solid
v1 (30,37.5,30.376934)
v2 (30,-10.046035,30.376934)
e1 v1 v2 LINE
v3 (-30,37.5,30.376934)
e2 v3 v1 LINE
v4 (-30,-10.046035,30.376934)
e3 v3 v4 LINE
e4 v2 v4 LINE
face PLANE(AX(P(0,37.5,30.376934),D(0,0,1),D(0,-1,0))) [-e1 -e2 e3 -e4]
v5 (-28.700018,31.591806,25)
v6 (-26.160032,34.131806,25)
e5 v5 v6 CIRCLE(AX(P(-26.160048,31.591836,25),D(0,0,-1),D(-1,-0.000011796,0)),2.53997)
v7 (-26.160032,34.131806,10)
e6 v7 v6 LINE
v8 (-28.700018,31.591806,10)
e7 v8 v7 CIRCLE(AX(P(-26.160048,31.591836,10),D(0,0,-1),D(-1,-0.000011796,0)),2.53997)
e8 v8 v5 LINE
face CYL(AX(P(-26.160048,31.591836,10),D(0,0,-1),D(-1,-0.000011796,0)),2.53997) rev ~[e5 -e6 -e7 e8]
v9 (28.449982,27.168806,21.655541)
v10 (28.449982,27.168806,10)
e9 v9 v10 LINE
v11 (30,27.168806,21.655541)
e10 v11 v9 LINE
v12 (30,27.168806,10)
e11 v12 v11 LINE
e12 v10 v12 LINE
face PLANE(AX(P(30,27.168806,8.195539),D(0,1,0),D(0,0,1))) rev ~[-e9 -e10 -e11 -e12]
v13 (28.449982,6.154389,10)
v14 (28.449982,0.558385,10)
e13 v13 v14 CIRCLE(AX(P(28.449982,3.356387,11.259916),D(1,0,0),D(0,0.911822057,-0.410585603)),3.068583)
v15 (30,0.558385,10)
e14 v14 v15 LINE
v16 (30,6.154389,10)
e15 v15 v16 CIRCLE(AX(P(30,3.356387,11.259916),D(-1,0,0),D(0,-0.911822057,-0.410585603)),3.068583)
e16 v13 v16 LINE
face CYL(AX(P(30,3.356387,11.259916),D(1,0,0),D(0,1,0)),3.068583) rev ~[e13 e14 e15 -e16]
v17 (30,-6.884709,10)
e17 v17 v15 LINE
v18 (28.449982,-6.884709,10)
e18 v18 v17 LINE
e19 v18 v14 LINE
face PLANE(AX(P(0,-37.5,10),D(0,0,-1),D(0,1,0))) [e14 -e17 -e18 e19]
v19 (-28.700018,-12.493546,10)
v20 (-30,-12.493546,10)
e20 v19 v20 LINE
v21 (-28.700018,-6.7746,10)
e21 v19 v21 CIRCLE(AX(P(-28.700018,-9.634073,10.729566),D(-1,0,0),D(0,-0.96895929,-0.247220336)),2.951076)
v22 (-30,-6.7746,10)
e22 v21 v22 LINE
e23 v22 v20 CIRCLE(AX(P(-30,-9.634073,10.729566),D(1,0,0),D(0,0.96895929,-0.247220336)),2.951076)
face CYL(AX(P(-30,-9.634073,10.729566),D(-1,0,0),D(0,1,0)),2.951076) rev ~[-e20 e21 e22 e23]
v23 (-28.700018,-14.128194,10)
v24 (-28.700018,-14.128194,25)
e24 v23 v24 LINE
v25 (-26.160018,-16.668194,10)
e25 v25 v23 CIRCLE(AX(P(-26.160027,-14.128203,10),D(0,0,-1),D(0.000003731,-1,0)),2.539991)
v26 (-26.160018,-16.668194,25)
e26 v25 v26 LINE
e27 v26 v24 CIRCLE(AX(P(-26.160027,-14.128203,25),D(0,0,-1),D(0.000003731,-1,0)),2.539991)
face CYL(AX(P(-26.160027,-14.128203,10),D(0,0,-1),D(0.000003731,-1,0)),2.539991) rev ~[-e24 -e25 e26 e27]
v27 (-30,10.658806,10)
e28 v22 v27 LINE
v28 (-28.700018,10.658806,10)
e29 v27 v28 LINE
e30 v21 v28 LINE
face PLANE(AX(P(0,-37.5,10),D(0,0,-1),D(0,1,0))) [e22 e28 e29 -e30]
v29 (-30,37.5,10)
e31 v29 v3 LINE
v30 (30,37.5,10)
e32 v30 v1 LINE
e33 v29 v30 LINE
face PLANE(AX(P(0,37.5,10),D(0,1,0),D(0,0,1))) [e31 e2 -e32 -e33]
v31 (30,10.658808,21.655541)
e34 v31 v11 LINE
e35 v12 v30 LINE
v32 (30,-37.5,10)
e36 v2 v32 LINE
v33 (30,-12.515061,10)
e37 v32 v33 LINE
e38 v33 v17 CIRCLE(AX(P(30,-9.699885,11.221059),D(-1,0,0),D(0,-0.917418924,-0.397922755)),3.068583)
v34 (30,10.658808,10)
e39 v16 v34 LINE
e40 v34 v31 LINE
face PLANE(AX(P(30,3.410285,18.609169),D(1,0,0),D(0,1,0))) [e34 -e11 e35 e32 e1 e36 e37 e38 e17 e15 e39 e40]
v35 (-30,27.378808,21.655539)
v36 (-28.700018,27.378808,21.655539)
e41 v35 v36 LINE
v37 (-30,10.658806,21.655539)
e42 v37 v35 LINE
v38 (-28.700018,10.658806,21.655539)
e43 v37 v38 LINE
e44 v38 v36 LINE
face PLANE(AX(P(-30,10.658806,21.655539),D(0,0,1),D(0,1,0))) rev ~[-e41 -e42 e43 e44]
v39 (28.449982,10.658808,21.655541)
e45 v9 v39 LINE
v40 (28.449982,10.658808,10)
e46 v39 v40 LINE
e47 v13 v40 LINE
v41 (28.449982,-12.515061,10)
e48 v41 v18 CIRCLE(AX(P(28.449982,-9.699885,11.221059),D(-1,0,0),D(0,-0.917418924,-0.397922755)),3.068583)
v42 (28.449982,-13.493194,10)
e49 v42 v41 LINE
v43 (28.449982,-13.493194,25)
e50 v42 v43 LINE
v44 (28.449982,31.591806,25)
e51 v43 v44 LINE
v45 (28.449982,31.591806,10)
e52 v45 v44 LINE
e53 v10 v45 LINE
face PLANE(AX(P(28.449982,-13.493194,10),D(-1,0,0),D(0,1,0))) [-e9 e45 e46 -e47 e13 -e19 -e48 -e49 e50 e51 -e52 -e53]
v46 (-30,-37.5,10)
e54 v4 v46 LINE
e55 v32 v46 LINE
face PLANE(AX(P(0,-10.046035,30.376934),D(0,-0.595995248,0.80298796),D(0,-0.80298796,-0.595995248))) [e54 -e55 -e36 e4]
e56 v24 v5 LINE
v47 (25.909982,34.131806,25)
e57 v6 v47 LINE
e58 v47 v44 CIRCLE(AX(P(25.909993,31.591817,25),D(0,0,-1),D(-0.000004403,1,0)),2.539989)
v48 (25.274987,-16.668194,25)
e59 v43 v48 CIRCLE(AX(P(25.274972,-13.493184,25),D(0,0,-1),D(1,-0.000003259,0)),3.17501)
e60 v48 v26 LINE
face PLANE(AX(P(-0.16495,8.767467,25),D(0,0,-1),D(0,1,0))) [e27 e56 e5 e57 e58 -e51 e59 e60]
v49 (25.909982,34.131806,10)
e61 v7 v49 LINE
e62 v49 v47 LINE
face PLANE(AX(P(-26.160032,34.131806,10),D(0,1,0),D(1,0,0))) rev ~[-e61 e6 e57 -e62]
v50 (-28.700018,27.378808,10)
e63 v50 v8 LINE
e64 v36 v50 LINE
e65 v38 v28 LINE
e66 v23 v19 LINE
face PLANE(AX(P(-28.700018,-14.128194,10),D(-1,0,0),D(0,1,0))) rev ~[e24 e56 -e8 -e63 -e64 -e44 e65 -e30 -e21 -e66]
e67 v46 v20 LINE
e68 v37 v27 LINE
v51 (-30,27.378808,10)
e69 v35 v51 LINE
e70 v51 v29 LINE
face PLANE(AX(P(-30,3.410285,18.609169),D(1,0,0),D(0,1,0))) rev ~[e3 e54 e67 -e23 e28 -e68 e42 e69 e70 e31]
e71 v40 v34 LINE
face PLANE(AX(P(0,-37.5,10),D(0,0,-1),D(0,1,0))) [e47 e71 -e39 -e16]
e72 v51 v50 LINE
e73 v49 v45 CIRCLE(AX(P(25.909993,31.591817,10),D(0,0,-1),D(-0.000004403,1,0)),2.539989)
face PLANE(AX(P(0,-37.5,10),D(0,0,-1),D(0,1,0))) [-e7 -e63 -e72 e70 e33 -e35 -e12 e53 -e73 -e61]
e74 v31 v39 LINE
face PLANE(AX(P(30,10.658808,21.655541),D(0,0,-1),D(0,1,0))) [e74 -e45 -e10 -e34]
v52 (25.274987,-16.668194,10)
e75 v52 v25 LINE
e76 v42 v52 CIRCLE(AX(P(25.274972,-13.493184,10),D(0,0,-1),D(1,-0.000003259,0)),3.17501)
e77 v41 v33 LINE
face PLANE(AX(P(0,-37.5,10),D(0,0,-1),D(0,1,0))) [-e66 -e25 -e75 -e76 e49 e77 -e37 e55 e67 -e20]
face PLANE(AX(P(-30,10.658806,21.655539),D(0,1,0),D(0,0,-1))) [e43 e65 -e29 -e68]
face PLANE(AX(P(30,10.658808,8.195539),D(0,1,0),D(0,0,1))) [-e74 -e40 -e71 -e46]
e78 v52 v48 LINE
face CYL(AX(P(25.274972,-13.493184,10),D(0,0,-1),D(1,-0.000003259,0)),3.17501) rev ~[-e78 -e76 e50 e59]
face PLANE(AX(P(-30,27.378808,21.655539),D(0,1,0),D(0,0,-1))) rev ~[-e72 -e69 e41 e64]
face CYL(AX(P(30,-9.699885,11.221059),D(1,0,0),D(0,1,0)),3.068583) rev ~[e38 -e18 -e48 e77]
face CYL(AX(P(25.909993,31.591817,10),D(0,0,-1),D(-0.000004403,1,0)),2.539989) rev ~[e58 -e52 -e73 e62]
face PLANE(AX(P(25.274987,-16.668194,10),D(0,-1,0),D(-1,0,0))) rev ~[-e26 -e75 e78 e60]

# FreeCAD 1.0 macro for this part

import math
import FreeCAD as App
import Part
import Sketcher
Q = App.Units.Quantity


def add_polygon(sketch, points):
    """Adds a closed chain of lines whose ends are joined by coincident constraints."""
    first, n = sketch.GeometryCount, len(points)
    for a, b in zip(points, points[1:] + points[:1]):
        sketch.addGeometry(Part.LineSegment(App.Vector(*a, 0), App.Vector(*b, 0)), False)
    for i in range(n):
        sketch.addConstraint(Sketcher.Constraint("Coincident", first + i, 2, first + (i + 1) % n, 1))

doc = App.newDocument("Part")
body = doc.addObject("PartDesign::Body", "Body")

# Sketch on YZ plane
sketch1 = body.newObject("Sketcher::SketchObject", "Sketch")
sketch1.AttachmentSupport = (doc.getObject("YZ_Plane"), [""])
sketch1.MapMode = "FlatFace"
add_polygon(sketch1, [(-37.5, 10), (37.5, 10), (37.5, 30.376934), (-10.046035, 30.376934)])  # lines 0-3
sketch1.addConstraint(Sketcher.Constraint("Horizontal", 0))
sketch1.addConstraint(Sketcher.Constraint("Vertical", 1))
sketch1.addConstraint(Sketcher.Constraint("Horizontal", 2))
sketch1.addConstraint(Sketcher.Constraint("DistanceX", 0, 1, 0, 2, Q("75 mm")))
sketch1.addConstraint(Sketcher.Constraint("DistanceY", -1, 1, 0, 2, Q("10 mm")))
sketch1.addConstraint(Sketcher.Constraint("DistanceX", -1, 1, 0, 2, Q("37.5 mm")))
sketch1.addConstraint(Sketcher.Constraint("Distance", 3, Q("34.189759 mm")))
sketch1.addConstraint(Sketcher.Constraint("DistanceX", 2, 2, 2, 1, Q("47.546035 mm")))
pad1 = body.newObject("PartDesign::Pad", "Pad")
pad1.Profile = sketch1
pad1.Length = 60
pad1.Midplane = True

# Sketch on XY plane
sketch2 = body.newObject("Sketcher::SketchObject", "Sketch001")
sketch2.AttachmentSupport = (doc.getObject("XY_Plane"), [""])
sketch2.MapMode = "FlatFace"
sketch2.AttachmentOffset = App.Placement(App.Vector(0, 0, 10), App.Rotation())
sketch2.addGeometry(Part.LineSegment(App.Vector(25.274987, -16.668194, 0), App.Vector(-26.160018, -16.668194, 0)), False)
sketch2.addGeometry(Part.ArcOfCircle(Part.Circle(App.Vector(-26.160027, -14.128203, 0), App.Vector(0, 0, 1), 2.539991), math.radians(179.999786), math.radians(270.000214)), False)
sketch2.addGeometry(Part.LineSegment(App.Vector(-28.700018, -14.128194, 0), App.Vector(-28.700018, 31.591806, 0)), False)
sketch2.addGeometry(Part.ArcOfCircle(Part.Circle(App.Vector(-26.160048, 31.591836, 0), App.Vector(0, 0, 1), 2.53997), math.radians(89.99964), math.radians(180.000676)), False)
sketch2.addGeometry(Part.LineSegment(App.Vector(-26.160032, 34.131806, 0), App.Vector(25.909982, 34.131806, 0)), False)
sketch2.addGeometry(Part.ArcOfCircle(Part.Circle(App.Vector(25.909993, 31.591817, 0), App.Vector(0, 0, 1), 2.539989), math.radians(-0.000252), math.radians(90.000252)), False)
sketch2.addGeometry(Part.LineSegment(App.Vector(28.449982, 31.591806, 0), App.Vector(28.449982, -13.493194, 0)), False)
sketch2.addGeometry(Part.ArcOfCircle(Part.Circle(App.Vector(25.274972, -13.493184, 0), App.Vector(0, 0, 1), 3.17501), math.radians(-89.999723), math.radians(-0.000187)), False)
sketch2.addConstraint(Sketcher.Constraint("Coincident", 0, 2, 1, 2))
sketch2.addConstraint(Sketcher.Constraint("Coincident", 1, 1, 2, 1))
sketch2.addConstraint(Sketcher.Constraint("Coincident", 2, 2, 3, 2))
sketch2.addConstraint(Sketcher.Constraint("Coincident", 3, 1, 4, 1))
sketch2.addConstraint(Sketcher.Constraint("Coincident", 4, 2, 5, 2))
sketch2.addConstraint(Sketcher.Constraint("Coincident", 5, 1, 6, 1))
sketch2.addConstraint(Sketcher.Constraint("Coincident", 6, 2, 7, 2))
sketch2.addConstraint(Sketcher.Constraint("Coincident", 7, 1, 0, 1))
sketch2.addConstraint(Sketcher.Constraint("Horizontal", 0))
sketch2.addConstraint(Sketcher.Constraint("Vertical", 2))
sketch2.addConstraint(Sketcher.Constraint("Horizontal", 4))
sketch2.addConstraint(Sketcher.Constraint("Vertical", 6))
sketch2.addConstraint(Sketcher.Constraint("Equal", 1, 5))
sketch2.addConstraint(Sketcher.Constraint("Horizontal", 2, 2, 5, 1))
sketch2.addConstraint(Sketcher.Constraint("DistanceY", 2, 1, 2, 2, Q("45.72 mm")))
sketch2.addConstraint(Sketcher.Constraint("DistanceY", 0, 2, 3, 1, Q("50.8 mm")))
sketch2.addConstraint(Sketcher.Constraint("DistanceY", 6, 2, 6, 1, Q("45.085 mm")))
sketch2.addConstraint(Sketcher.Constraint("Radius", 1, Q("2.539991 mm")))
sketch2.addConstraint(Sketcher.Constraint("Radius", 3, Q("2.53997 mm")))
sketch2.addConstraint(Sketcher.Constraint("Radius", 7, Q("3.17501 mm")))
sketch2.addConstraint(Sketcher.Constraint("DistanceX", 1, 1, 0, 2, Q("2.54 mm")))
sketch2.addConstraint(Sketcher.Constraint("DistanceY", 0, 2, 1, 1, Q("2.54 mm")))
sketch2.addConstraint(Sketcher.Constraint("DistanceX", 2, 2, 4, 2, Q("54.61 mm")))
sketch2.addConstraint(Sketcher.Constraint("DistanceX", 4, 2, 5, 1, Q("2.54 mm")))
sketch2.addConstraint(Sketcher.Constraint("DistanceX", 0, 2, 0, 1, Q("51.435005 mm")))
sketch2.addConstraint(Sketcher.Constraint("DistanceX", 4, 1, 4, 2, Q("52.070014 mm")))
sketch2.addConstraint(Sketcher.Constraint("DistanceX", -1, 1, 7, 3, Q("25.274972 mm")))
sketch2.addConstraint(Sketcher.Constraint("DistanceY", 1, 3, -1, 1, Q("14.128203 mm")))
pocket1 = body.newObject("PartDesign::Pocket", "Pocket")
pocket1.Profile = sketch2
pocket1.Length = 15
pocket1.Reversed = True

# Sketch on YZ plane
sketch3 = body.newObject("Sketcher::SketchObject", "Sketch002")
sketch3.AttachmentSupport = (doc.getObject("YZ_Plane"), [""])
sketch3.MapMode = "FlatFace"
sketch3.AttachmentOffset = App.Placement(App.Vector(0, 0, -30), App.Rotation())
sketch3.addGeometry(Part.Circle(App.Vector(-9.634073, 10.729566, 0), App.Vector(0, 0, 1), 2.951076), False)  # 0
add_polygon(sketch3, [(10.658806, 8.195541), (10.658806, 21.655539), (27.378808, 21.655539), (27.378808, 8.195541)])  # lines 1-4
sketch3.addConstraint(Sketcher.Constraint("Vertical", 1))
sketch3.addConstraint(Sketcher.Constraint("Horizontal", 2))
sketch3.addConstraint(Sketcher.Constraint("Vertical", 3))
sketch3.addConstraint(Sketcher.Constraint("Horizontal", 4))
sketch3.addConstraint(Sketcher.Constraint("Diameter", 0, Q("5.902152 mm")))
sketch3.addConstraint(Sketcher.Constraint("DistanceX", 2, 1, 2, 2, Q("16.720002 mm")))
sketch3.addConstraint(Sketcher.Constraint("DistanceY", 1, 1, 1, 2, Q("13.459998 mm")))
sketch3.addConstraint(Sketcher.Constraint("DistanceY", -1, 1, 1, 2, Q("21.655539 mm")))
sketch3.addConstraint(Sketcher.Constraint("DistanceX", 0, 3, 1, 2, Q("20.292879 mm")))
sketch3.addConstraint(Sketcher.Constraint("DistanceX", 0, 3, -1, 1, Q("9.634073 mm")))
sketch3.addConstraint(Sketcher.Constraint("DistanceY", -1, 1, 0, 3, Q("10.729566 mm")))
pocket2 = body.newObject("PartDesign::Pocket", "Pocket001")
pocket2.Profile = sketch3
pocket2.Length = 5
pocket2.Reversed = True

# Sketch on YZ plane
sketch4 = body.newObject("Sketcher::SketchObject", "Sketch003")
sketch4.AttachmentSupport = (doc.getObject("YZ_Plane"), [""])
sketch4.MapMode = "FlatFace"
sketch4.AttachmentOffset = App.Placement(App.Vector(0, 0, 30), App.Rotation())
sketch4.addGeometry(Part.Circle(App.Vector(3.356387, 11.259916, 0), App.Vector(0, 0, 1), 3.068583), False)  # 0
sketch4.addGeometry(Part.Circle(App.Vector(-9.699885, 11.221059, 0), App.Vector(0, 0, 1), 3.068583), False)  # 1
add_polygon(sketch4, [(10.658808, 21.655541), (10.658808, 8.195539), (27.168806, 8.195539), (27.168806, 21.655541)])  # lines 2-5
sketch4.addConstraint(Sketcher.Constraint("Vertical", 2))
sketch4.addConstraint(Sketcher.Constraint("Horizontal", 3))
sketch4.addConstraint(Sketcher.Constraint("Vertical", 4))
sketch4.addConstraint(Sketcher.Constraint("Horizontal", 5))
sketch4.addConstraint(Sketcher.Constraint("Equal", 0, 1))
sketch4.addConstraint(Sketcher.Constraint("DistanceY", 2, 2, 2, 1, Q("13.460002 mm")))
sketch4.addConstraint(Sketcher.Constraint("Diameter", 0, Q("6.137166 mm")))
sketch4.addConstraint(Sketcher.Constraint("DistanceX", 3, 1, 3, 2, Q("16.509998 mm")))
sketch4.addConstraint(Sketcher.Constraint("DistanceY", -1, 1, 1, 3, Q("11.221059 mm")))
sketch4.addConstraint(Sketcher.Constraint("DistanceY", -1, 1, 2, 2, Q("8.195539 mm")))
sketch4.addConstraint(Sketcher.Constraint("DistanceX", 0, 3, 2, 2, Q("7.302421 mm")))
sketch4.addConstraint(Sketcher.Constraint("DistanceX", 1, 3, 3, 2, Q("36.868691 mm")))
sketch4.addConstraint(Sketcher.Constraint("DistanceX", -1, 1, 0, 3, Q("3.356387 mm")))
sketch4.addConstraint(Sketcher.Constraint("DistanceY", -1, 1, 0, 3, Q("11.259916 mm")))
pocket3 = body.newObject("PartDesign::Pocket", "Pocket002")
pocket3.Profile = sketch4
pocket3.Length = 5

doc.recompute()
